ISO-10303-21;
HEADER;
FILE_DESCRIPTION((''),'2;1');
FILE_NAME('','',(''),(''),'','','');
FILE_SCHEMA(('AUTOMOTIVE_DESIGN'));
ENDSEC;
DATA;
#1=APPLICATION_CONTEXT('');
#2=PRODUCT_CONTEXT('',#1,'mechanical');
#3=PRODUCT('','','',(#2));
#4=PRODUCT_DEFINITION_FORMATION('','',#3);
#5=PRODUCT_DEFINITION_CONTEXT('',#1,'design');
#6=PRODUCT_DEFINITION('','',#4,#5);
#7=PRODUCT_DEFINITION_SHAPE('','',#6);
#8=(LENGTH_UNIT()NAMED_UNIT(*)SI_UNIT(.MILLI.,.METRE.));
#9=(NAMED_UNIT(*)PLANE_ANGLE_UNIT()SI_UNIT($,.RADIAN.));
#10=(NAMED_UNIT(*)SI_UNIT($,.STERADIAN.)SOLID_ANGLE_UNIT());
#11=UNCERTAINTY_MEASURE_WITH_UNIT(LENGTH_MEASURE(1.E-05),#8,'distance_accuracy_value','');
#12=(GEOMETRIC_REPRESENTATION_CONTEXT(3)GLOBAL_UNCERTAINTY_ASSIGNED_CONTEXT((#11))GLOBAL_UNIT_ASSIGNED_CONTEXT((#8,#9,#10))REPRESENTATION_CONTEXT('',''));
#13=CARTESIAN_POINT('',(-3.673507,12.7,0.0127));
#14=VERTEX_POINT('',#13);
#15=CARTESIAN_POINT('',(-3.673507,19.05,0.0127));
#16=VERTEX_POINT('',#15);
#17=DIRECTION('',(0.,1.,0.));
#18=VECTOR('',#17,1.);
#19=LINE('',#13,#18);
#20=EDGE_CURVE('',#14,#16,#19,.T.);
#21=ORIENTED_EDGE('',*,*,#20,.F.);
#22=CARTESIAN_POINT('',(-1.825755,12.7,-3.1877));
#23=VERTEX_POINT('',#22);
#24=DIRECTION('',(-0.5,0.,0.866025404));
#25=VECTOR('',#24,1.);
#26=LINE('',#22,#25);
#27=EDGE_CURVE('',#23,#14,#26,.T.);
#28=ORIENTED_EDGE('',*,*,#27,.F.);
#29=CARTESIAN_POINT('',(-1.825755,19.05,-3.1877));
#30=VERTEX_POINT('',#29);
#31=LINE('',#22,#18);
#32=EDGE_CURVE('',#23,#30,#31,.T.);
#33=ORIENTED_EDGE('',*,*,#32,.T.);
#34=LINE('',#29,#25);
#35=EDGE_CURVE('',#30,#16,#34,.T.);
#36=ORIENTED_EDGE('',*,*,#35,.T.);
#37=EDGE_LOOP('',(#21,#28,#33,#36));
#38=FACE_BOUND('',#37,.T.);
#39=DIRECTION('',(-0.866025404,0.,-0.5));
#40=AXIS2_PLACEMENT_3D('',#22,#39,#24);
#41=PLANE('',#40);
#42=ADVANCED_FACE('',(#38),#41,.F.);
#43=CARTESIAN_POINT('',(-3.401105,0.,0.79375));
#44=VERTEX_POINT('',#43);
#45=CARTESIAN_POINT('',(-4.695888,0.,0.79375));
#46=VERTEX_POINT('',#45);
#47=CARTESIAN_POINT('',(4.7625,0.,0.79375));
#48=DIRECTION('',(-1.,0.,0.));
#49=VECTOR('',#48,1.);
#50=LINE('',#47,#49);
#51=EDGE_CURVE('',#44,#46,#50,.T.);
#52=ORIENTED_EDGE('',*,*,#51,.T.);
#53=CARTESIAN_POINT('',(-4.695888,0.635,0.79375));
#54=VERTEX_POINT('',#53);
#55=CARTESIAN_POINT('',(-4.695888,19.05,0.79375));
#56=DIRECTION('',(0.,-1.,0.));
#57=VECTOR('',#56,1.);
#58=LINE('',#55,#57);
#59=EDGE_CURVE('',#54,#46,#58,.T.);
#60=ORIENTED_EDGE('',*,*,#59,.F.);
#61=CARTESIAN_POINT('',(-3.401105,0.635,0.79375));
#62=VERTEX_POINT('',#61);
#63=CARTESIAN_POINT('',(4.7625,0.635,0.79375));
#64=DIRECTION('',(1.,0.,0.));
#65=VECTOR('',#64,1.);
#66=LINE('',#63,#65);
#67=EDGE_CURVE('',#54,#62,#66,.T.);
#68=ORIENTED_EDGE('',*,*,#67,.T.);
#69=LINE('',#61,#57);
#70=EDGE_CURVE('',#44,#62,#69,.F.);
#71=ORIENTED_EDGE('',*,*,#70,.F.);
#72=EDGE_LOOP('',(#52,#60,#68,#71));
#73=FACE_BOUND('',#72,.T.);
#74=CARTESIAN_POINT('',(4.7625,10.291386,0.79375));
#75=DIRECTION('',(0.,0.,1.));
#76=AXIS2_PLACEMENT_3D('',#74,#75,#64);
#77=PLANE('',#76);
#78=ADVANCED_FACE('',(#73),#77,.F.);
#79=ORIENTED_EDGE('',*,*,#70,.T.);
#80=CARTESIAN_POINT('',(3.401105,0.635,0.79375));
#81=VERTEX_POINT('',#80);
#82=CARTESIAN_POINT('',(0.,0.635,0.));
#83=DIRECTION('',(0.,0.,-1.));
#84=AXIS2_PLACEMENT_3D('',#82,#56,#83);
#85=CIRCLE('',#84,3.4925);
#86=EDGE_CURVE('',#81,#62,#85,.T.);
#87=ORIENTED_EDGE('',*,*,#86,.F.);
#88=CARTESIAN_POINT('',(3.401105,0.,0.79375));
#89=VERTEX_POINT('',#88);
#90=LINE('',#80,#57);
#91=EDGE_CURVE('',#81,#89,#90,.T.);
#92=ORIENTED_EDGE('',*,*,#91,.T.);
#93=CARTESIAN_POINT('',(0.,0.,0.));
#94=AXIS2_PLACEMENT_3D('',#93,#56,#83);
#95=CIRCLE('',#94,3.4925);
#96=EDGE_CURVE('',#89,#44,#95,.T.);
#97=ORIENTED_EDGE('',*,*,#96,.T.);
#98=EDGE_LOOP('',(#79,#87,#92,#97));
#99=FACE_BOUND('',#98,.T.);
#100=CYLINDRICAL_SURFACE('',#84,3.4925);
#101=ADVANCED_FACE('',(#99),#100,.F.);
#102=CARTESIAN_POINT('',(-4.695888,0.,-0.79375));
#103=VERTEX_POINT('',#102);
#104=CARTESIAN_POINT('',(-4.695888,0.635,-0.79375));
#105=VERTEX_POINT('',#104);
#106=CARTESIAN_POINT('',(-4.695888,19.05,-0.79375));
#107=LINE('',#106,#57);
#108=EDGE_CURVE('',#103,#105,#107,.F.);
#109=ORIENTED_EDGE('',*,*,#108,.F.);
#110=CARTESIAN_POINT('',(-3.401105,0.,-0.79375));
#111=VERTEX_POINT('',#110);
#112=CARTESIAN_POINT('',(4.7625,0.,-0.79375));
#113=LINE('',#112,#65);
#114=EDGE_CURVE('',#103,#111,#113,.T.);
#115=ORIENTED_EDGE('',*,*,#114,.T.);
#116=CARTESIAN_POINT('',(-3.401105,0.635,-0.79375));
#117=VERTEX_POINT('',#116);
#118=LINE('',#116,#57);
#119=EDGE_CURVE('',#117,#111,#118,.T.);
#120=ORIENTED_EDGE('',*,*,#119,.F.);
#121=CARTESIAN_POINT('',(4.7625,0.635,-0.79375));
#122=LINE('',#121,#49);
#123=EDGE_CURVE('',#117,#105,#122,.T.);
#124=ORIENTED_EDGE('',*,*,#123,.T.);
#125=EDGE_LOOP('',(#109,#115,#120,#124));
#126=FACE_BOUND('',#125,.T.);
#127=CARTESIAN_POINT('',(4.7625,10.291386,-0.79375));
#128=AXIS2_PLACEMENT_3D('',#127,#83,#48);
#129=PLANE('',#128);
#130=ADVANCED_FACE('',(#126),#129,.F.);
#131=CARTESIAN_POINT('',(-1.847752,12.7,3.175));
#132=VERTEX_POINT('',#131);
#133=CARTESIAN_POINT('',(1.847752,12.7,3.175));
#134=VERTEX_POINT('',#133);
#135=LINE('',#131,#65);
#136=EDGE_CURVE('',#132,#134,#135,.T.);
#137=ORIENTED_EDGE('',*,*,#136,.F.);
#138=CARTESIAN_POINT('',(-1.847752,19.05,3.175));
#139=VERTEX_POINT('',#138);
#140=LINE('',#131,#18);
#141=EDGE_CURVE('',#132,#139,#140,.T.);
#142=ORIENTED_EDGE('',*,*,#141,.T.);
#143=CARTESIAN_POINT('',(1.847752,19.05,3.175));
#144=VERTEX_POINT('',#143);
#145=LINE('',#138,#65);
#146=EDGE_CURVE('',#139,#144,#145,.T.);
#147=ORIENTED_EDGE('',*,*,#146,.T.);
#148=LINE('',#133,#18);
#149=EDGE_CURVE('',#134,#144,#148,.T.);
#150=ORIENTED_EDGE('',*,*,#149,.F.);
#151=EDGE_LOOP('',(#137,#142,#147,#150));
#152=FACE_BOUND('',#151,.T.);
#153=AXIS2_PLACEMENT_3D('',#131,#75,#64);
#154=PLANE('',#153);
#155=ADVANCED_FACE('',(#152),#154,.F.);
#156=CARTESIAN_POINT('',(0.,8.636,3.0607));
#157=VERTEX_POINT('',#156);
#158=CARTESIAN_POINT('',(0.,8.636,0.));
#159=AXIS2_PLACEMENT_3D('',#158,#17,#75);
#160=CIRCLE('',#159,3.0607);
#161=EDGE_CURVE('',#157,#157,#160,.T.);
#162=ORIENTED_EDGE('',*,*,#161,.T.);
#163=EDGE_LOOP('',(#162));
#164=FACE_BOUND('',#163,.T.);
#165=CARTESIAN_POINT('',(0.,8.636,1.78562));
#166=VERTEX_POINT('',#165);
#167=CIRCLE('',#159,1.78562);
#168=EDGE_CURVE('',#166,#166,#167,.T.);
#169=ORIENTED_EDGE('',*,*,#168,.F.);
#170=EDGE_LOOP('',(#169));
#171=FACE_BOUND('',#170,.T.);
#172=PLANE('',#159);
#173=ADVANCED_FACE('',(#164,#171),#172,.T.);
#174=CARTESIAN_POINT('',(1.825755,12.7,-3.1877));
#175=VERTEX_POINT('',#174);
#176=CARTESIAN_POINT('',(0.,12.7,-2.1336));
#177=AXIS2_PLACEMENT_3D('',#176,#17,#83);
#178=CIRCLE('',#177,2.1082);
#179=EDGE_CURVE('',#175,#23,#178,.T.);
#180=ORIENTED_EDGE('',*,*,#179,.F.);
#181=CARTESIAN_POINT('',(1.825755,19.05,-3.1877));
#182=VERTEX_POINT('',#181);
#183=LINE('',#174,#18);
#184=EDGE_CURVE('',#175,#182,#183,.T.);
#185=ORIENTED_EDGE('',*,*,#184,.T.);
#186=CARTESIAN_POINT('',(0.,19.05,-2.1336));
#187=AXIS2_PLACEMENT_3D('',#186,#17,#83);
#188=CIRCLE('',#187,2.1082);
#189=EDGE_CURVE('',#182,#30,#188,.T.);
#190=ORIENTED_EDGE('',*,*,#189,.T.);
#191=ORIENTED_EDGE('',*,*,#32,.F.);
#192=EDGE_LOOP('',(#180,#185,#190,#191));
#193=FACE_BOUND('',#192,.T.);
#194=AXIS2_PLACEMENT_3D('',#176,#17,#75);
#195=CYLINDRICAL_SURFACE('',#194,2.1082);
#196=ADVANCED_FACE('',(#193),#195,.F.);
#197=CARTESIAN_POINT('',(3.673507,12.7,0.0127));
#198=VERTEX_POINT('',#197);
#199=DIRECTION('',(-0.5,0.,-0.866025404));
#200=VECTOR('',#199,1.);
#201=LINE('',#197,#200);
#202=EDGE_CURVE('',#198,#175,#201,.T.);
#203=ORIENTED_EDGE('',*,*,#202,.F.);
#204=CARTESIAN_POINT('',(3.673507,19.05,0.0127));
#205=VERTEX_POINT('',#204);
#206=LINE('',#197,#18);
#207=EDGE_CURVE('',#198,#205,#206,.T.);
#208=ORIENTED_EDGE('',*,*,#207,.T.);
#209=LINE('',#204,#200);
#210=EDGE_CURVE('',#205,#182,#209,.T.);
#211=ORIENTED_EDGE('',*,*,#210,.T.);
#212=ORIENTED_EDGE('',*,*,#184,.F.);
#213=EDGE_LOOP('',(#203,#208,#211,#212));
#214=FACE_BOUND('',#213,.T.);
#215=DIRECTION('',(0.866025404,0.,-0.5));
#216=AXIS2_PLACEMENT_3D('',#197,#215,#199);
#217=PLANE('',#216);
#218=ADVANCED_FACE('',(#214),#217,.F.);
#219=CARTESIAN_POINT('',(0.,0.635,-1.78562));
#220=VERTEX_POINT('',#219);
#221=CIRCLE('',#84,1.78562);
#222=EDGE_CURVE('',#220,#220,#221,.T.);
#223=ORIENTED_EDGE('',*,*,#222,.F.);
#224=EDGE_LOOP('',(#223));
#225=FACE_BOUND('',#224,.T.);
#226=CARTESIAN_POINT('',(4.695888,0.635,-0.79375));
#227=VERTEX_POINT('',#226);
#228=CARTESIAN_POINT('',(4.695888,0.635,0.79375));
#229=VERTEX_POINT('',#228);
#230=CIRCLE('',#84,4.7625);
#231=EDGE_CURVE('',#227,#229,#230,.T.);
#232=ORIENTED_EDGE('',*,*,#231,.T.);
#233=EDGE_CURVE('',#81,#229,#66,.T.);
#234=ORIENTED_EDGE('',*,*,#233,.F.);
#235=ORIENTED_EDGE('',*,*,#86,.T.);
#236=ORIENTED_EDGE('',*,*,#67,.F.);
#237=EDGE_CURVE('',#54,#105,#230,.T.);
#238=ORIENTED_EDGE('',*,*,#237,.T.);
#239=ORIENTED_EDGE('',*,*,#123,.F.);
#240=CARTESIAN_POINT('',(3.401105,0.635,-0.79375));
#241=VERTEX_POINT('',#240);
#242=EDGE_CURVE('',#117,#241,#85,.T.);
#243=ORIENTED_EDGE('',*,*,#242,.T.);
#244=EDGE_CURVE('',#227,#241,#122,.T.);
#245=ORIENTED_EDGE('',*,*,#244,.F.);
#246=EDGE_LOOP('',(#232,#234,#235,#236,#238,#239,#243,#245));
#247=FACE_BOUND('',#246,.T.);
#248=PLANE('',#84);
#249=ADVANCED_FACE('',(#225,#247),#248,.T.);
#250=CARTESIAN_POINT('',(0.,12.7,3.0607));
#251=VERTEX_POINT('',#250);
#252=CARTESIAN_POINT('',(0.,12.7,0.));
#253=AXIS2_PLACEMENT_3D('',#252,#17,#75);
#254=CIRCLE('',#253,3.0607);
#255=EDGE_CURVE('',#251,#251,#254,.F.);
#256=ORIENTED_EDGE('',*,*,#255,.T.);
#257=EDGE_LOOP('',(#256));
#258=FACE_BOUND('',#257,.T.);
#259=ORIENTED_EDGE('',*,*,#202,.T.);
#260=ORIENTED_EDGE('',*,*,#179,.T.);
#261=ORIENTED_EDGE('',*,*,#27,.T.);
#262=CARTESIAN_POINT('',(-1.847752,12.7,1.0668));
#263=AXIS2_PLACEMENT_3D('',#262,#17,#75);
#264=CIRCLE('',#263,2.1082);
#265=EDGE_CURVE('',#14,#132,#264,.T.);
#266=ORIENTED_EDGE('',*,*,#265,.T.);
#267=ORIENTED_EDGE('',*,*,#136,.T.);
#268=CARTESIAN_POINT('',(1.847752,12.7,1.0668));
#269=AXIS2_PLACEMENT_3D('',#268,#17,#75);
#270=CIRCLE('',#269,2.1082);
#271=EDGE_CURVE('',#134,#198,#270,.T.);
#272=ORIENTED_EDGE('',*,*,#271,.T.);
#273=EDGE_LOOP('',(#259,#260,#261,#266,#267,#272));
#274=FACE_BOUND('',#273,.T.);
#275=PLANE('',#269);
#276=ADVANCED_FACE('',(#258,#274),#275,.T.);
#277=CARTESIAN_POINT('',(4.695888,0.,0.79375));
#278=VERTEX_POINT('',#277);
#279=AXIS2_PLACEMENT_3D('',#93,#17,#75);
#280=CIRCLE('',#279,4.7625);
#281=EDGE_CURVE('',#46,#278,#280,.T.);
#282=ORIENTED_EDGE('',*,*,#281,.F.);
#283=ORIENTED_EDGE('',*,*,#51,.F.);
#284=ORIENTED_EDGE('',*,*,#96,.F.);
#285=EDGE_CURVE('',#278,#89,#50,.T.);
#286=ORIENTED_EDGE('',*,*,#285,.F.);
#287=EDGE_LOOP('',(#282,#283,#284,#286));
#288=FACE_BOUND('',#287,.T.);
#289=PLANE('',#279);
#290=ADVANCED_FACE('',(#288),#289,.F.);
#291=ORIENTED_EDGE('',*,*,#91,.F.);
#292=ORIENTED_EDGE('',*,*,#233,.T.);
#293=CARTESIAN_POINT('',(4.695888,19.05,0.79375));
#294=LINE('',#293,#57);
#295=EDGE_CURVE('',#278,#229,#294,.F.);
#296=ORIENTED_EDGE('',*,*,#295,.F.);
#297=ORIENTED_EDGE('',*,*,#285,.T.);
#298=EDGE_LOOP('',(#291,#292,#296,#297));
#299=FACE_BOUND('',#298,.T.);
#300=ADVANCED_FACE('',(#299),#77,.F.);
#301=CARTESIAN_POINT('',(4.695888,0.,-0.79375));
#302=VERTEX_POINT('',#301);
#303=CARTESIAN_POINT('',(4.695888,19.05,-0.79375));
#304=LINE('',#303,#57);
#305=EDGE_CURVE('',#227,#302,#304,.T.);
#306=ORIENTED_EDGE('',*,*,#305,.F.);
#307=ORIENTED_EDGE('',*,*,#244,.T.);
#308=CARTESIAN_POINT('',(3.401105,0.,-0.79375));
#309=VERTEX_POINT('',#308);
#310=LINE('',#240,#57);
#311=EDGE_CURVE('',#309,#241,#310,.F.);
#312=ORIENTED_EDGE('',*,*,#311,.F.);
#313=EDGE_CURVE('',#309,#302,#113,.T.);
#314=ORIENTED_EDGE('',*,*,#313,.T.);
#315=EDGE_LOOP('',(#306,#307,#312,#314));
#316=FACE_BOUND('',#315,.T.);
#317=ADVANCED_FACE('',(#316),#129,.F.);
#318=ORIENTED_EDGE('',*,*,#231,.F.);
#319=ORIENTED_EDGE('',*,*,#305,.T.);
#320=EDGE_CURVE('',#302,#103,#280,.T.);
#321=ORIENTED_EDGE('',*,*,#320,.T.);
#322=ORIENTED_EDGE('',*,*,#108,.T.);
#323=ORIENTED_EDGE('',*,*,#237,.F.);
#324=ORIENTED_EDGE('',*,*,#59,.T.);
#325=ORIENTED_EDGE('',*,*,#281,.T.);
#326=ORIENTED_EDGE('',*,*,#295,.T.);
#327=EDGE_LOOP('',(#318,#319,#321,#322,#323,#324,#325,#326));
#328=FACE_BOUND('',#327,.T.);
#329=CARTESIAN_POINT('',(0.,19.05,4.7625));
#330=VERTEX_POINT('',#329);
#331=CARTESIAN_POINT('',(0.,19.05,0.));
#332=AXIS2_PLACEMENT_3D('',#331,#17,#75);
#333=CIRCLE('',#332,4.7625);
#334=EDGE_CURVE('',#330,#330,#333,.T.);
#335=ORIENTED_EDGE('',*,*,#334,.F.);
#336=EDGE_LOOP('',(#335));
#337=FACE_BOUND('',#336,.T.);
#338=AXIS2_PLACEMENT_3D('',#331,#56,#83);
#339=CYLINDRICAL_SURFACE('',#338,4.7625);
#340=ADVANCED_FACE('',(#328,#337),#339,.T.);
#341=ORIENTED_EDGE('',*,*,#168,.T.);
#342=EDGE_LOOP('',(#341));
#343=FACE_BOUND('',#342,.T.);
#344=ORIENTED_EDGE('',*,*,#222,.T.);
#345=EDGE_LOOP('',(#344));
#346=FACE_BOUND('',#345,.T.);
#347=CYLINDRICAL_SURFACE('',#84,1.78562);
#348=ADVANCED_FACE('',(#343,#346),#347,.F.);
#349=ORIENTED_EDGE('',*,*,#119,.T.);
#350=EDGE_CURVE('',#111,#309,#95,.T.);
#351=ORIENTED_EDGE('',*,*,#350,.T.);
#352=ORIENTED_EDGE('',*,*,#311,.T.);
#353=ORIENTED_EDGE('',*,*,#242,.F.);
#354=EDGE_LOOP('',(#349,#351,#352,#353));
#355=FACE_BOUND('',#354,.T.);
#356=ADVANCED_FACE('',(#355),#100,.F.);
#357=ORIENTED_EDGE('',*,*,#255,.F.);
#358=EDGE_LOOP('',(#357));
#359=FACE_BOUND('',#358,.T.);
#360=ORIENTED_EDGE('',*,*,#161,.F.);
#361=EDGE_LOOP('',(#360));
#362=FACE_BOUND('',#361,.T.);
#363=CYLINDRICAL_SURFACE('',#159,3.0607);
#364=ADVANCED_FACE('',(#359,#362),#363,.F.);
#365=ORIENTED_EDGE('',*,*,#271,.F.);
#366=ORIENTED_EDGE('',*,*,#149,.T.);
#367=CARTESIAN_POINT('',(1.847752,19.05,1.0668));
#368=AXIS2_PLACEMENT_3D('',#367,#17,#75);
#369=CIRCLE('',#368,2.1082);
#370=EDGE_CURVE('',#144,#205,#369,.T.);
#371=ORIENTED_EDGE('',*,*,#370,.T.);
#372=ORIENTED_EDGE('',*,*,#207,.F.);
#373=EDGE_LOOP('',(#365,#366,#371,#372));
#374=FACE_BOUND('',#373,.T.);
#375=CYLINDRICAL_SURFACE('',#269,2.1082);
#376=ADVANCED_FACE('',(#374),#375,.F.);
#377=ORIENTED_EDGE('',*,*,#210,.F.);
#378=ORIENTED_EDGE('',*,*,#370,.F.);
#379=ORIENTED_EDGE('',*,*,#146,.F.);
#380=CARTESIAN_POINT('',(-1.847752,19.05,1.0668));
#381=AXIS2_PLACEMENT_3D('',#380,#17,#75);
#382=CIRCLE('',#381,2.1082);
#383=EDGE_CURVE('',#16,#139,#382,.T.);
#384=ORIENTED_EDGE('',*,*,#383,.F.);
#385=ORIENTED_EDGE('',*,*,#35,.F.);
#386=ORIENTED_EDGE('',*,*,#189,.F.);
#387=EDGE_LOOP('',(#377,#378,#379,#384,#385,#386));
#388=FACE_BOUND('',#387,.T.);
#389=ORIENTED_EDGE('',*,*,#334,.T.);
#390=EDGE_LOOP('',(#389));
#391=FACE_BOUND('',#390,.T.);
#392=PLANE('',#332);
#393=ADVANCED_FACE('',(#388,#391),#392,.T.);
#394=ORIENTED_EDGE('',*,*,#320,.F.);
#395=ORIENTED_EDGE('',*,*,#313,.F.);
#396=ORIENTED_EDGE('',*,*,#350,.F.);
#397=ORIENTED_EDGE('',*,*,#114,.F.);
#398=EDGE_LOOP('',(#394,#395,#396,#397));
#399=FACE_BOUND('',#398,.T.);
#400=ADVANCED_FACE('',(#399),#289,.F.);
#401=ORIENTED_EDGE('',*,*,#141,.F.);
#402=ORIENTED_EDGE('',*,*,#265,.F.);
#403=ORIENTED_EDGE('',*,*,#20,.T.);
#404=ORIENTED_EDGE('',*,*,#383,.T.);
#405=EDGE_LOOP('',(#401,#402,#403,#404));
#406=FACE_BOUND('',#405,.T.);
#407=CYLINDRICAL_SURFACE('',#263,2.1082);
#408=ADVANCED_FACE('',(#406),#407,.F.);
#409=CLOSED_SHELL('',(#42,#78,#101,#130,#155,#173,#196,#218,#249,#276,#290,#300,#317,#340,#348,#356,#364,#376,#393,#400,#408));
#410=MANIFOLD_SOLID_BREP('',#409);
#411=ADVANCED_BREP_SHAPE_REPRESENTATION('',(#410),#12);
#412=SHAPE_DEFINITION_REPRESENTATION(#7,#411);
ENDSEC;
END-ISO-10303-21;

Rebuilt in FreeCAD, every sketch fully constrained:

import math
import FreeCAD as App
import Part
import Sketcher
from FreeCAD import Vector
Q = App.Units.Quantity


def add_polygon(sketch, points):
    """Adds a closed chain of lines whose ends are joined by coincident constraints."""
    first, n = sketch.GeometryCount, len(points)
    for a, b in zip(points, points[1:] + points[:1]):
        sketch.addGeometry(Part.LineSegment(App.Vector(*a, 0), App.Vector(*b, 0)), False)
    for i in range(n):
        sketch.addConstraint(Sketcher.Constraint("Coincident", first + i, 2, first + (i + 1) % n, 1))

doc = App.newDocument("Part")
body = doc.addObject("PartDesign::Body", "Body")

# Sketch on XZ plane
sketch1 = body.newObject("Sketcher::SketchObject", "Sketch")
sketch1.AttachmentSupport = (doc.getObject("XZ_Plane"), [""])
sketch1.MapMode = "FlatFace"
sketch1.addGeometry(Part.Circle(Vector(0, 0, 0), Vector(0, 0, 1), 4.7625), False)
sketch1.addConstraint(Sketcher.Constraint("Coincident", 0, 3, -1, 1))
sketch1.addConstraint(Sketcher.Constraint("Diameter", 0, Q("0.375 in")))
pad1 = body.newObject("PartDesign::Pad", "Pad")
pad1.Profile = sketch1
pad1.Length = Q("0.75 in")
pad1.Reversed = True

# Sketch on XZ plane
sketch2 = body.newObject("Sketcher::SketchObject", "Sketch001")
sketch2.AttachmentSupport = (doc.getObject("XZ_Plane"), [""])
sketch2.MapMode = "FlatFace"
sketch2.AttachmentOffset = App.Placement(Vector(0, 0, -0.75 * 25.4), App.Rotation())
sketch2.addGeometry(Part.Circle(Vector(0, 0, 0), Vector(0, 0, 1), 3.0607), False)
sketch2.addConstraint(Sketcher.Constraint("Coincident", 0, 3, -1, 1))
sketch2.addConstraint(Sketcher.Constraint("Diameter", 0, Q("0.241 in")))
pocket1 = body.newObject("PartDesign::Pocket", "Pocket")
pocket1.Profile = sketch2
pocket1.Length = Q("0.41 in")
pocket1.Reversed = True

# Sketch on XZ plane
sketch3 = body.newObject("Sketcher::SketchObject", "Sketch002")
sketch3.AttachmentSupport = (doc.getObject("XZ_Plane"), [""])
sketch3.MapMode = "FlatFace"
sketch3.addGeometry(Part.Circle(Vector(0, 0, 0), Vector(0, 0, 1), 3.4925), False)
sketch3.addConstraint(Sketcher.Constraint("Coincident", 0, 3, -1, 1))
sketch3.addConstraint(Sketcher.Constraint("Diameter", 0, Q("0.275 in")))
pocket2 = body.newObject("PartDesign::Pocket", "Pocket001")
pocket2.Profile = sketch3
pocket2.Length = Q("0.025 in")

# Sketch on XZ plane
sketch4 = body.newObject("Sketcher::SketchObject", "Sketch003")
sketch4.AttachmentSupport = (doc.getObject("XZ_Plane"), [""])
sketch4.MapMode = "FlatFace"
sketch4.AttachmentOffset = App.Placement(Vector(0, 0, -0.75 * 25.4), App.Rotation())
sketch4.addGeometry(Part.LineSegment(Vector(-1.825755, -3.1877, 0), Vector(-3.673507, 0.0127, 0)), False)
sketch4.addGeometry(Part.ArcOfCircle(Part.Circle(Vector(-1.847752, 1.0668, 0), Vector(0, 0, 1), 2.1082), math.radians(90), math.radians(210)), False)
sketch4.addGeometry(Part.LineSegment(Vector(-1.847752, 3.175, 0), Vector(1.847752, 3.175, 0)), False)
sketch4.addGeometry(Part.ArcOfCircle(Part.Circle(Vector(1.847752, 1.0668, 0), Vector(0, 0, 1), 2.1082), math.radians(-30), math.radians(90)), False)
sketch4.addGeometry(Part.LineSegment(Vector(3.673507, 0.0127, 0), Vector(1.825755, -3.1877, 0)), False)
sketch4.addGeometry(Part.ArcOfCircle(Part.Circle(Vector(0, -2.1336, 0), Vector(0, 0, 1), 2.1082), math.radians(-150), math.radians(-30)), False)
sketch4.addConstraint(Sketcher.Constraint("Tangent", 0, 2, 1, 2))
sketch4.addConstraint(Sketcher.Constraint("Tangent", 1, 1, 2, 1))
sketch4.addConstraint(Sketcher.Constraint("Tangent", 2, 2, 3, 2))
sketch4.addConstraint(Sketcher.Constraint("Tangent", 3, 1, 4, 1))
sketch4.addConstraint(Sketcher.Constraint("Tangent", 4, 2, 5, 2))
sketch4.addConstraint(Sketcher.Constraint("Tangent", 5, 1, 0, 1))
sketch4.addConstraint(Sketcher.Constraint("Horizontal", 2))
sketch4.addConstraint(Sketcher.Constraint("Equal", 1, 3))
sketch4.addConstraint(Sketcher.Constraint("Equal", 3, 5))
sketch4.addConstraint(Sketcher.Constraint("Symmetric", 0, 2, 3, 1, -2))
sketch4.addConstraint(Sketcher.Constraint("Angle", 0, Q("120 deg")))
sketch4.addConstraint(Sketcher.Constraint("Radius", 1, Q("0.083 in")))
sketch4.addConstraint(Sketcher.Constraint("DistanceY", -1, 1, 1, 3, Q("0.042 in")))
sketch4.addConstraint(Sketcher.Constraint("DistanceY", 5, 3, -1, 1, Q("0.084 in")))
pocket3 = body.newObject("PartDesign::Pocket", "Pocket002")
pocket3.Profile = sketch4
pocket3.Length = Q("0.25 in")
pocket3.Reversed = True

# Sketch on XZ plane
sketch5 = body.newObject("Sketcher::SketchObject", "Sketch004")
sketch5.AttachmentSupport = (doc.getObject("XZ_Plane"), [""])
sketch5.MapMode = "FlatFace"
sketch5.AttachmentOffset = App.Placement(Vector(0, 0, -0.025 * 25.4), App.Rotation())
sketch5.addGeometry(Part.Circle(Vector(0, 0, 0), Vector(0, 0, 1), 1.78562), False)
sketch5.addConstraint(Sketcher.Constraint("Coincident", 0, 3, -1, 1))
sketch5.addConstraint(Sketcher.Constraint("Diameter", 0, Q("0.1406 in")))
doc.recompute()
hole = body.newObject("PartDesign::Hole", "Hole")
hole.Profile = sketch5
hole.ThreadType = "None"
hole.Diameter = Q("0.1406 in")
hole.DepthType = "ThroughAll"

# Sketch on XZ plane
sketch6 = body.newObject("Sketcher::SketchObject", "Sketch005")
sketch6.AttachmentSupport = (doc.getObject("XZ_Plane"), [""])
sketch6.MapMode = "FlatFace"
add_polygon(sketch6, [(-4.7625, 0.79375), (-4.7625, -0.79375), (4.7625, -0.79375), (4.7625, 0.79375)])  # lines 0-3
sketch6.addConstraint(Sketcher.Constraint("Vertical", 0))
sketch6.addConstraint(Sketcher.Constraint("Horizontal", 1))
sketch6.addConstraint(Sketcher.Constraint("Vertical", 2))
sketch6.addConstraint(Sketcher.Constraint("Horizontal", 3))
sketch6.addConstraint(Sketcher.Constraint("Symmetric", 0, 2, 2, 2, -1, 1))
sketch6.addConstraint(Sketcher.Constraint("DistanceX", 1, 1, 1, 2, Q("0.375 in")))
sketch6.addConstraint(Sketcher.Constraint("DistanceY", 0, 2, 0, 1, Q("0.0625 in")))
pocket4 = body.newObject("PartDesign::Pocket", "Pocket003")
pocket4.Profile = sketch6
pocket4.Length = Q("0.025 in")

doc.recompute()
